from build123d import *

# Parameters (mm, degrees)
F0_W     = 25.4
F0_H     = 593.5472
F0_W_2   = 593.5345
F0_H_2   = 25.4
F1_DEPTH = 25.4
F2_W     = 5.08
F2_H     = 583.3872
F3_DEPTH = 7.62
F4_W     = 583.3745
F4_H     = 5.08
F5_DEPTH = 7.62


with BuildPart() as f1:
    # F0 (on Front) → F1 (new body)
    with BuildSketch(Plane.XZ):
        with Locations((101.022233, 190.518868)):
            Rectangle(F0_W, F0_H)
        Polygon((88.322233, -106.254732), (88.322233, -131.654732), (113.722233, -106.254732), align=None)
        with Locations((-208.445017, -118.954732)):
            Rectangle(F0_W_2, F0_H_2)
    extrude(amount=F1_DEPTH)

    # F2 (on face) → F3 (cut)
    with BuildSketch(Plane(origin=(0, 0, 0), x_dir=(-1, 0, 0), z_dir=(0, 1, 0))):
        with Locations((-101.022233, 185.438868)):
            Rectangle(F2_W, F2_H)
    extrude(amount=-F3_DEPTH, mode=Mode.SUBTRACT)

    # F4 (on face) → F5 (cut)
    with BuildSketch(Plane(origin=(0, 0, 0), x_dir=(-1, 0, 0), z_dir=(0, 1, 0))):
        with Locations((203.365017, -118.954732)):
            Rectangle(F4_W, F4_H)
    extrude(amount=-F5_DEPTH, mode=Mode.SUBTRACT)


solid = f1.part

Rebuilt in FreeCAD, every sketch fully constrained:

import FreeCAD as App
import Part
import Sketcher
from FreeCAD import Vector
Q = App.Units.Quantity


def add_polygon(sketch, points):
    """Adds a closed chain of lines whose ends are joined by coincident constraints."""
    first, n = sketch.GeometryCount, len(points)
    for a, b in zip(points, points[1:] + points[:1]):
        sketch.addGeometry(Part.LineSegment(App.Vector(*a, 0), App.Vector(*b, 0)), False)
    for i in range(n):
        sketch.addConstraint(Sketcher.Constraint("Coincident", first + i, 2, first + (i + 1) % n, 1))

doc = App.newDocument("Part")
body = doc.addObject("PartDesign::Body", "Body")

# Sketch on XZ plane
sketch1 = body.newObject("Sketcher::SketchObject", "Sketch")
sketch1.AttachmentSupport = (doc.getObject("XZ_Plane"), [""])
sketch1.MapMode = "FlatFace"
add_polygon(sketch1, [(88, 487), (88, -106), (-505, -106), (-505, -132), (88, -132), (114, -106), (114, 487)])  # lines 0-6
sketch1.addConstraint([
    Sketcher.Constraint("Vertical", 0),
    Sketcher.Constraint("Horizontal", 1),
    Sketcher.Constraint("Vertical", 2),
    Sketcher.Constraint("Horizontal", 3),
    Sketcher.Constraint("Vertical", 5),
    Sketcher.Constraint("Horizontal", 6),
    Sketcher.Constraint("Horizontal", 1, 2, 4, 2),
    Sketcher.Constraint("Vertical", 0, 2, 3, 2),
    Sketcher.Constraint("Equal", 6, 2),
    Sketcher.Constraint("DistanceX", 6, 2, 6, 1, Q("1 in")),
    Sketcher.Constraint("DistanceY", 0, 2, 0, 1, Q("23.368 in")),
    Sketcher.Constraint("DistanceX", 1, 2, 1, 1, Q("23.3675 in")),
    Sketcher.Constraint("DistanceY", 2, 2, -1, 1, Q("131.654732 mm")),
    Sketcher.Constraint("DistanceX", -1, 1, 0, 2, Q("88.322233 mm")),
])
pad1 = body.newObject("PartDesign::Pad", "Pad")
pad1.Profile = sketch1
pad1.Length = Q("1 in")

# Sketch on XZ plane
sketch2 = body.newObject("Sketcher::SketchObject", "Sketch001")
sketch2.AttachmentSupport = (doc.getObject("XZ_Plane"), [""])
sketch2.MapMode = "FlatFace"
add_polygon(sketch2, [(104, 477), (104, -106), (98, -106), (98, 477)])  # lines 0-3
sketch2.addConstraint([
    Sketcher.Constraint("Vertical", 0),
    Sketcher.Constraint("Horizontal", 1),
    Sketcher.Constraint("Vertical", 2),
    Sketcher.Constraint("Horizontal", 3),
    Sketcher.Constraint("DistanceX", 1, 2, 1, 1, Q("0.2 in")),
    Sketcher.Constraint("DistanceY", 0, 2, 0, 1, Q("22.968 in")),
    Sketcher.Constraint("DistanceY", -1, 1, 2, 2, Q("477.132468 mm")),
    Sketcher.Constraint("DistanceX", -1, 1, 0, 2, Q("103.562233 mm")),
])
pocket1 = body.newObject("PartDesign::Pocket", "Pocket")
pocket1.Profile = sketch2
pocket1.Length = Q("0.3 in")
pocket1.Reversed = True

# Sketch on XZ plane
sketch3 = body.newObject("Sketcher::SketchObject", "Sketch002")
sketch3.AttachmentSupport = (doc.getObject("XZ_Plane"), [""])
sketch3.MapMode = "FlatFace"
add_polygon(sketch3, [(88, -116), (88, -121), (-495, -121), (-495, -116)])  # lines 0-3
sketch3.addConstraint([
    Sketcher.Constraint("Vertical", 0),
    Sketcher.Constraint("Horizontal", 1),
    Sketcher.Constraint("Vertical", 2),
    Sketcher.Constraint("Horizontal", 3),
    Sketcher.Constraint("DistanceY", 0, 2, 0, 1, Q("0.2 in")),
    Sketcher.Constraint("DistanceX", 1, 2, 1, 1, Q("22.9675 in")),
    Sketcher.Constraint("DistanceY", 0, 2, -1, 1, Q("121.494732 mm")),
    Sketcher.Constraint("DistanceX", -1, 1, 0, 2, Q("88.322233 mm")),
])
pocket2 = body.newObject("PartDesign::Pocket", "Pocket001")
pocket2.Profile = sketch3
pocket2.Length = Q("0.3 in")
pocket2.Reversed = True

doc.recompute()
